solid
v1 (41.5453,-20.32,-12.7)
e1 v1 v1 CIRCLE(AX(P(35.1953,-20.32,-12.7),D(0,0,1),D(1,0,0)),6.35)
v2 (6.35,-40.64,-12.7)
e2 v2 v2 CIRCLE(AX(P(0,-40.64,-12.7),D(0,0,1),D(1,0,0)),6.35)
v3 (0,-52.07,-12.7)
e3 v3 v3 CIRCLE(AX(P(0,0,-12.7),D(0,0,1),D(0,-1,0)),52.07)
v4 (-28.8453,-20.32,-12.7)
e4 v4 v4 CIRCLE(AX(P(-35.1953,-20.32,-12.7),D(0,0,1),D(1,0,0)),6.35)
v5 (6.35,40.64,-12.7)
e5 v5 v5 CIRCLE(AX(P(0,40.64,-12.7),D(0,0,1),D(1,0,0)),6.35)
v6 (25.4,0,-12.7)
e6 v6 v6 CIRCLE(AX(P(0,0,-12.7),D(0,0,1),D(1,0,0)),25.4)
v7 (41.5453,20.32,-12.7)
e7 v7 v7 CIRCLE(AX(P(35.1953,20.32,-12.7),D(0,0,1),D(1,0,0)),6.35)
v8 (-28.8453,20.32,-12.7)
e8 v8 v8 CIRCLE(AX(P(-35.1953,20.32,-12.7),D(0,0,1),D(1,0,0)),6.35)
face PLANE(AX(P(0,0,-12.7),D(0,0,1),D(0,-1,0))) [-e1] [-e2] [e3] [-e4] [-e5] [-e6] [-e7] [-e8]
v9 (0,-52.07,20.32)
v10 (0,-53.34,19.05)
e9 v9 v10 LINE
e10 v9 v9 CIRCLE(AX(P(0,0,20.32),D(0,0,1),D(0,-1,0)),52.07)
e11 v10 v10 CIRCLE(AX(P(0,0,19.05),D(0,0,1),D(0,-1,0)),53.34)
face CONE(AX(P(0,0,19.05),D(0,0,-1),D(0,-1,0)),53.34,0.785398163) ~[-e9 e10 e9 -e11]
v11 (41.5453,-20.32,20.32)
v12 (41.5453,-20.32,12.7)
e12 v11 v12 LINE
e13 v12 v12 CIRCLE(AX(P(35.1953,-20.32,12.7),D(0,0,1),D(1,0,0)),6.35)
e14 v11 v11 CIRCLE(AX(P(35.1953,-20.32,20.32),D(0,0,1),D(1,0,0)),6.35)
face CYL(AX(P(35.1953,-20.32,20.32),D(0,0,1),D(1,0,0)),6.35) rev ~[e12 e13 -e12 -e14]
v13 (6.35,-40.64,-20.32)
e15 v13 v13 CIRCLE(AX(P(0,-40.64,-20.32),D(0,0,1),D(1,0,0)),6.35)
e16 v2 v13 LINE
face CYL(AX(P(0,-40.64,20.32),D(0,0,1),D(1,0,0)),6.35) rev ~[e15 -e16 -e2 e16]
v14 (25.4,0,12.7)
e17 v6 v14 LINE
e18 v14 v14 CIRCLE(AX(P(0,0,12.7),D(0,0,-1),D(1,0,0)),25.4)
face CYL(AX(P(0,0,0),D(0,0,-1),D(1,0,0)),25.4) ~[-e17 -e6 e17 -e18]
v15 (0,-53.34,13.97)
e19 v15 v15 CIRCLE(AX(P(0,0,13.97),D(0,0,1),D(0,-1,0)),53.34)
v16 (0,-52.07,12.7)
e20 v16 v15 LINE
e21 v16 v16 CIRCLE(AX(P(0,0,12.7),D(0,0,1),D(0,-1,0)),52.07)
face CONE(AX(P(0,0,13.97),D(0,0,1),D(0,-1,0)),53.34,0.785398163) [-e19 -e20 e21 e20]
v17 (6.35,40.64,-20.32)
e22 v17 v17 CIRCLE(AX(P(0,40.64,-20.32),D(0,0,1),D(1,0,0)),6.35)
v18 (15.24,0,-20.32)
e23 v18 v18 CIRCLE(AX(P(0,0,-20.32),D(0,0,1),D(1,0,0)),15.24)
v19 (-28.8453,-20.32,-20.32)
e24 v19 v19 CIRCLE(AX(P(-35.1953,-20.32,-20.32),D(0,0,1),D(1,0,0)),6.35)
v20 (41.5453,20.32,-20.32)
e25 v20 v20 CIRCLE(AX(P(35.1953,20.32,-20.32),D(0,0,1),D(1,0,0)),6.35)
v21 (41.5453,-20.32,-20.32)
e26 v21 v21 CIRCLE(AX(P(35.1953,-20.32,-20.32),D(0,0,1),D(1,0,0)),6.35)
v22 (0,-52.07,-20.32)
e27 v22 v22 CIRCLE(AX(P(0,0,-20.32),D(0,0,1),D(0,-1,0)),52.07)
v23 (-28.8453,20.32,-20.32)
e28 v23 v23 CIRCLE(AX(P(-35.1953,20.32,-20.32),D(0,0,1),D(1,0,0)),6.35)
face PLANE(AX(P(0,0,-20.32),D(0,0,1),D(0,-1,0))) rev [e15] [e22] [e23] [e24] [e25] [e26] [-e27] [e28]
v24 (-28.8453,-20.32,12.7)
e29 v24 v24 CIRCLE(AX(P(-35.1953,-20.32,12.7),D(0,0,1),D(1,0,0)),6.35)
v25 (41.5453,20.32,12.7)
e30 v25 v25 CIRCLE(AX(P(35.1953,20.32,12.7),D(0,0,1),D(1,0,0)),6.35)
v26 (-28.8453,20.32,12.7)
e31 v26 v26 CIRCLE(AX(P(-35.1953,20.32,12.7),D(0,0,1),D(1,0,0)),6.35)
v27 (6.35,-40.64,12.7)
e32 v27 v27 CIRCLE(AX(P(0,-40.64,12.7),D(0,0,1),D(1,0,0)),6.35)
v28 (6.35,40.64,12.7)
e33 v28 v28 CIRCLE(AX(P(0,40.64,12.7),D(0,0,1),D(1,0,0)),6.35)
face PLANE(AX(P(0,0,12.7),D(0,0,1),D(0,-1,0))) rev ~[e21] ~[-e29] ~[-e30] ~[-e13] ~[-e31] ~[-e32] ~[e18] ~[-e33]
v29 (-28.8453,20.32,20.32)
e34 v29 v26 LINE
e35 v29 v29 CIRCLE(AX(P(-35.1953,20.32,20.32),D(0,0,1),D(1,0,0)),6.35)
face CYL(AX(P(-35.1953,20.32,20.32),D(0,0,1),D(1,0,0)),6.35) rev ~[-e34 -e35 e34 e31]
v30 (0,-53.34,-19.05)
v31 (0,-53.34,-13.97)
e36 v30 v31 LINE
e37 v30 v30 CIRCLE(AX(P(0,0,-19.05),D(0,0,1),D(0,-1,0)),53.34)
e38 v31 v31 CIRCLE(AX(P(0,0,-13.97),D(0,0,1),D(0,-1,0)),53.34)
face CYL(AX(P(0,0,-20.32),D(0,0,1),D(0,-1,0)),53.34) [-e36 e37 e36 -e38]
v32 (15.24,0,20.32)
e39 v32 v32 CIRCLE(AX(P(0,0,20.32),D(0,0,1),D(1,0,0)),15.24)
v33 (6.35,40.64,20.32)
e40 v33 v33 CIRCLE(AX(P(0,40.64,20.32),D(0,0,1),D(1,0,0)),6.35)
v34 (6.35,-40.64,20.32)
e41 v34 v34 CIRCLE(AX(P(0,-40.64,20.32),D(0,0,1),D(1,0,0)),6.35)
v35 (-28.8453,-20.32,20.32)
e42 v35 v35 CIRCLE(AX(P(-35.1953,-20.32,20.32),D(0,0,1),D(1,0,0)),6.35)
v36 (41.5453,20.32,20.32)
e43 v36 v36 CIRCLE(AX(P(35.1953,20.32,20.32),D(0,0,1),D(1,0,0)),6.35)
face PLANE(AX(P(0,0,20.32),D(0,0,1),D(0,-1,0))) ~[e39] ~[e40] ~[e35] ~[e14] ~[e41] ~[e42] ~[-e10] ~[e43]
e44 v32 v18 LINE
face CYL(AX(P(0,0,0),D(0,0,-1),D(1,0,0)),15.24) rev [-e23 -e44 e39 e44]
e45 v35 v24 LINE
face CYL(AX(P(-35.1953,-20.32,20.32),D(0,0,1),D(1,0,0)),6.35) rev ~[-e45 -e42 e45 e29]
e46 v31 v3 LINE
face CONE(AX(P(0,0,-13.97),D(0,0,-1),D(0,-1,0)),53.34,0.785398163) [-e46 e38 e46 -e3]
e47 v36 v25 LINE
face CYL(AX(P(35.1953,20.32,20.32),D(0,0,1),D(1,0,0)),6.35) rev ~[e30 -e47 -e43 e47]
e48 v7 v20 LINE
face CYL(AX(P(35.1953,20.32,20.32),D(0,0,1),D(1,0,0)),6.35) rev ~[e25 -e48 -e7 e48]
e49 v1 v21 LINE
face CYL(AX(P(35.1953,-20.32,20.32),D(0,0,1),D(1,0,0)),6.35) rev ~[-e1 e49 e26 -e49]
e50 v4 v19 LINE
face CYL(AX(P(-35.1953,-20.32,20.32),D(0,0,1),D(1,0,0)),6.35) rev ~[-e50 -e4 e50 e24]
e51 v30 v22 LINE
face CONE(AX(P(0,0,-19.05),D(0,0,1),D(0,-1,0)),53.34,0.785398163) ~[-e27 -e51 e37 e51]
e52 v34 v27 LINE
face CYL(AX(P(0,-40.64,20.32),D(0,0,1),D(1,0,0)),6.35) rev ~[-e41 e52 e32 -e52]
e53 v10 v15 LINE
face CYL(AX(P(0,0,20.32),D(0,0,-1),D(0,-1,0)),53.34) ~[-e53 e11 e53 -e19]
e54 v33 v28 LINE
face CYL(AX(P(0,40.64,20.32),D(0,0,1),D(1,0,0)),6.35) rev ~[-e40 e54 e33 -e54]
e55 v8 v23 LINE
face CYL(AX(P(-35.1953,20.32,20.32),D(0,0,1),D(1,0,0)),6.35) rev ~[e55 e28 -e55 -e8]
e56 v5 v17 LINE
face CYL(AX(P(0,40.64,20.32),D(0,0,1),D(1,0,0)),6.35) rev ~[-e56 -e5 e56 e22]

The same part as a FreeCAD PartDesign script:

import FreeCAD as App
import Part
import Sketcher

V = App.Vector
Q = App.Units.Quantity


def edges_at(feature, points):
    """Names of the edges that pass closest to the given points."""
    edges = feature.Shape.Edges
    near = lambda p: min(range(len(edges)), key=lambda i: edges[i].distToShape(Part.Vertex(*p))[0])
    return sorted({f"Edge{near(p) + 1}" for p in points})

doc = App.newDocument("Part")
body = doc.addObject("PartDesign::Body", "Body")

# Sketch on XY plane
sketch1 = body.newObject("Sketcher::SketchObject", "Sketch")
sketch1.AttachmentSupport = (doc.getObject("XY_Plane"), [""])
sketch1.MapMode = "FlatFace"
sketch1.addGeometry(Part.Circle(V(0, 0, 0), V(0, 0, 1), 25.4), False)
sketch1.addGeometry(Part.Circle(V(0, 0, 0), V(0, 0, 1), 15.24), False)
sketch1.addConstraint(Sketcher.Constraint("Coincident", 0, 3, -1, 1))
sketch1.addConstraint(Sketcher.Constraint("Coincident", 1, 3, -1, 1))
sketch1.addConstraint(Sketcher.Constraint("Diameter", 0, Q("2 in")))
sketch1.addConstraint(Sketcher.Constraint("Diameter", 1, Q("1.2 in")))
pad1 = body.newObject("PartDesign::Pad", "Pad")
pad1.Profile = sketch1
pad1.Length = Q("1.6 in")
pad1.Midplane = True

# Sketch on YZ plane
sketch2 = body.newObject("Sketcher::SketchObject", "Sketch001")
sketch2.AttachmentSupport = (doc.getObject("YZ_Plane"), [""])
sketch2.MapMode = "FlatFace"
sketch2.addGeometry(Part.LineSegment(V(-53.34, -20.32, 0), V(-25.4, -20.32, 0)), False)
sketch2.addGeometry(Part.LineSegment(V(-25.4, -20.32, 0), V(-25.4, -12.7, 0)), False)
sketch2.addGeometry(Part.LineSegment(V(-25.4, -12.7, 0), V(-53.34, -12.7, 0)), False)
sketch2.addGeometry(Part.LineSegment(V(-53.34, -12.7, 0), V(-53.34, -20.32, 0)), False)
sketch2.addGeometry(Part.LineSegment(V(-25.4, 12.7, 0), V(-25.4, 20.32, 0)), False)
sketch2.addGeometry(Part.LineSegment(V(-25.4, 20.32, 0), V(-53.34, 20.32, 0)), False)
sketch2.addGeometry(Part.LineSegment(V(-53.34, 20.32, 0), V(-53.34, 12.7, 0)), False)
sketch2.addGeometry(Part.LineSegment(V(-53.34, 12.7, 0), V(-25.4, 12.7, 0)), False)
sketch2.addConstraint(Sketcher.Constraint("Coincident", 0, 2, 1, 1))
sketch2.addConstraint(Sketcher.Constraint("Coincident", 1, 2, 2, 1))
sketch2.addConstraint(Sketcher.Constraint("Coincident", 2, 2, 3, 1))
sketch2.addConstraint(Sketcher.Constraint("Coincident", 3, 2, 0, 1))
sketch2.addConstraint(Sketcher.Constraint("Coincident", 4, 2, 5, 1))
sketch2.addConstraint(Sketcher.Constraint("Coincident", 5, 2, 6, 1))
sketch2.addConstraint(Sketcher.Constraint("Coincident", 6, 2, 7, 1))
sketch2.addConstraint(Sketcher.Constraint("Coincident", 7, 2, 4, 1))
sketch2.addConstraint(Sketcher.Constraint("Horizontal", 0))
sketch2.addConstraint(Sketcher.Constraint("Vertical", 1))
sketch2.addConstraint(Sketcher.Constraint("Horizontal", 2))
sketch2.addConstraint(Sketcher.Constraint("Vertical", 3))
sketch2.addConstraint(Sketcher.Constraint("Vertical", 4))
sketch2.addConstraint(Sketcher.Constraint("Horizontal", 5))
sketch2.addConstraint(Sketcher.Constraint("Vertical", 6))
sketch2.addConstraint(Sketcher.Constraint("Horizontal", 7))
sketch2.addConstraint(Sketcher.Constraint("Symmetric", 0, 2, 4, 2, -1))
sketch2.addConstraint(Sketcher.Constraint("Symmetric", 2, 2, 6, 2, -1))
sketch2.addConstraint(Sketcher.Constraint("DistanceX", 0, 1, 0, 2, Q("1.1 in")))
sketch2.addConstraint(Sketcher.Constraint("DistanceY", 1, 1, 1, 2, Q("0.3 in")))
sketch2.addConstraint(Sketcher.Constraint("DistanceX", 0, 2, -1, 1, Q("1 in")))
sketch2.addConstraint(Sketcher.Constraint("DistanceY", 2, 2, 6, 2, Q("1 in")))
revolution = body.newObject("PartDesign::Revolution", "Revolution")
revolution.Profile = sketch2
revolution.ReferenceAxis = (sketch2, ["V_Axis"])
revolution.Angle = 360
doc.recompute()

chamfer = body.newObject("PartDesign::Chamfer", "Chamfer")
chamfer.Base = (revolution, edges_at(revolution, [(0, 53.34, -20.32)]))
chamfer.Size = Q("0.05 in")
doc.recompute()

chamfer2 = body.newObject("PartDesign::Chamfer", "Chamfer001")
chamfer2.Base = (chamfer, edges_at(chamfer, [(0, 53.34, -12.7)]))
chamfer2.Size = Q("0.05 in")
doc.recompute()

chamfer3 = body.newObject("PartDesign::Chamfer", "Chamfer002")
chamfer3.Base = (chamfer2, edges_at(chamfer2, [(0, 53.34, 20.32), (0, 53.34, 12.7)]))
chamfer3.Size = Q("0.05 in")

# Sketch on XY plane
sketch3 = body.newObject("Sketcher::SketchObject", "Sketch002")
sketch3.AttachmentSupport = (doc.getObject("XY_Plane"), [""])
sketch3.MapMode = "FlatFace"
sketch3.AttachmentOffset = App.Placement(V(0, 0, 0.8 * 25.4), App.Rotation())
sketch3.addGeometry(Part.Circle(V(0, 40.64, 0), V(0, 0, 1), 6.35), False)
sketch3.addGeometry(Part.Circle(V(-35.1953, 20.32, 0), V(0, 0, 1), 6.35), False)
sketch3.addGeometry(Part.Circle(V(-35.1953, -20.32, 0), V(0, 0, 1), 6.35), False)
sketch3.addGeometry(Part.Circle(V(0, -40.64, 0), V(0, 0, 1), 6.35), False)
sketch3.addGeometry(Part.Circle(V(35.1953, -20.32, 0), V(0, 0, 1), 6.35), False)
sketch3.addGeometry(Part.Circle(V(35.1953, 20.32, 0), V(0, 0, 1), 6.35), False)
sketch3.addConstraint(Sketcher.Constraint("Equal", 0, 1))
sketch3.addConstraint(Sketcher.Constraint("Equal", 1, 2))
sketch3.addConstraint(Sketcher.Constraint("Equal", 2, 3))
sketch3.addConstraint(Sketcher.Constraint("Equal", 3, 4))
sketch3.addConstraint(Sketcher.Constraint("Equal", 4, 5))
sketch3.addConstraint(Sketcher.Constraint("Symmetric", 0, 3, 3, 3, -1, 1))
sketch3.addConstraint(Sketcher.Constraint("Symmetric", 1, 3, 4, 3, -1, 1))
sketch3.addConstraint(Sketcher.Constraint("Symmetric", 2, 3, 5, 3, -1, 1))
sketch3.addConstraint(Sketcher.Constraint("Symmetric", 2, 3, 4, 3, -2))
sketch3.addConstraint(Sketcher.Constraint("PointOnObject", 0, 3, -2))
sketch3.addConstraint(Sketcher.Constraint("Diameter", 0, Q("0.5 in")))
sketch3.addConstraint(Sketcher.Constraint("DistanceY", 3, 3, 0, 3, Q("3.2 in")))
sketch3.addConstraint(Sketcher.Constraint("DistanceY", -1, 1, 1, 3, Q("0.8 in")))
sketch3.addConstraint(Sketcher.Constraint("DistanceX", 1, 3, -1, 1, 35.1953))
pocket1 = body.newObject("PartDesign::Pocket", "Pocket")
pocket1.Profile = sketch3
pocket1.Type = "ThroughAll"

doc.recompute()
